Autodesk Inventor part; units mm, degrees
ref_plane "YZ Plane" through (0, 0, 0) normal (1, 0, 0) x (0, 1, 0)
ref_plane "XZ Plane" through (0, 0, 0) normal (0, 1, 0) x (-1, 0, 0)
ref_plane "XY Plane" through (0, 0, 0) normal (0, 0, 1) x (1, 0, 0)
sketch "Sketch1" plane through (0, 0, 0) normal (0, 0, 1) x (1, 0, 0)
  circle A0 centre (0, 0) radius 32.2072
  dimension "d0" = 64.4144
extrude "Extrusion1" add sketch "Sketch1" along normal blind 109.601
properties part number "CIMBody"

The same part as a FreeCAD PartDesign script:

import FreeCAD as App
import Part
import Sketcher
Q = App.Units.Quantity

doc = App.newDocument("Part")
body = doc.addObject("PartDesign::Body", "Body")

sketch1 = body.newObject("Sketcher::SketchObject", "Sketch")
sketch1.AttachmentSupport = (doc.getObject("XY_Plane"), [""])
sketch1.MapMode = "FlatFace"
sketch1.addGeometry(Part.Circle(App.Vector(0, 0, 0), App.Vector(0, 0, 1), 32), False)
sketch1.addConstraint([
    Sketcher.Constraint("Coincident", 0, 3, -1, 1),
    Sketcher.Constraint("Diameter", 0, Q("2.536 in")),
])
pad1 = body.newObject("PartDesign::Pad", "Pad")
pad1.Profile = sketch1
pad1.Length = Q("4.315 in")

doc.recompute()
